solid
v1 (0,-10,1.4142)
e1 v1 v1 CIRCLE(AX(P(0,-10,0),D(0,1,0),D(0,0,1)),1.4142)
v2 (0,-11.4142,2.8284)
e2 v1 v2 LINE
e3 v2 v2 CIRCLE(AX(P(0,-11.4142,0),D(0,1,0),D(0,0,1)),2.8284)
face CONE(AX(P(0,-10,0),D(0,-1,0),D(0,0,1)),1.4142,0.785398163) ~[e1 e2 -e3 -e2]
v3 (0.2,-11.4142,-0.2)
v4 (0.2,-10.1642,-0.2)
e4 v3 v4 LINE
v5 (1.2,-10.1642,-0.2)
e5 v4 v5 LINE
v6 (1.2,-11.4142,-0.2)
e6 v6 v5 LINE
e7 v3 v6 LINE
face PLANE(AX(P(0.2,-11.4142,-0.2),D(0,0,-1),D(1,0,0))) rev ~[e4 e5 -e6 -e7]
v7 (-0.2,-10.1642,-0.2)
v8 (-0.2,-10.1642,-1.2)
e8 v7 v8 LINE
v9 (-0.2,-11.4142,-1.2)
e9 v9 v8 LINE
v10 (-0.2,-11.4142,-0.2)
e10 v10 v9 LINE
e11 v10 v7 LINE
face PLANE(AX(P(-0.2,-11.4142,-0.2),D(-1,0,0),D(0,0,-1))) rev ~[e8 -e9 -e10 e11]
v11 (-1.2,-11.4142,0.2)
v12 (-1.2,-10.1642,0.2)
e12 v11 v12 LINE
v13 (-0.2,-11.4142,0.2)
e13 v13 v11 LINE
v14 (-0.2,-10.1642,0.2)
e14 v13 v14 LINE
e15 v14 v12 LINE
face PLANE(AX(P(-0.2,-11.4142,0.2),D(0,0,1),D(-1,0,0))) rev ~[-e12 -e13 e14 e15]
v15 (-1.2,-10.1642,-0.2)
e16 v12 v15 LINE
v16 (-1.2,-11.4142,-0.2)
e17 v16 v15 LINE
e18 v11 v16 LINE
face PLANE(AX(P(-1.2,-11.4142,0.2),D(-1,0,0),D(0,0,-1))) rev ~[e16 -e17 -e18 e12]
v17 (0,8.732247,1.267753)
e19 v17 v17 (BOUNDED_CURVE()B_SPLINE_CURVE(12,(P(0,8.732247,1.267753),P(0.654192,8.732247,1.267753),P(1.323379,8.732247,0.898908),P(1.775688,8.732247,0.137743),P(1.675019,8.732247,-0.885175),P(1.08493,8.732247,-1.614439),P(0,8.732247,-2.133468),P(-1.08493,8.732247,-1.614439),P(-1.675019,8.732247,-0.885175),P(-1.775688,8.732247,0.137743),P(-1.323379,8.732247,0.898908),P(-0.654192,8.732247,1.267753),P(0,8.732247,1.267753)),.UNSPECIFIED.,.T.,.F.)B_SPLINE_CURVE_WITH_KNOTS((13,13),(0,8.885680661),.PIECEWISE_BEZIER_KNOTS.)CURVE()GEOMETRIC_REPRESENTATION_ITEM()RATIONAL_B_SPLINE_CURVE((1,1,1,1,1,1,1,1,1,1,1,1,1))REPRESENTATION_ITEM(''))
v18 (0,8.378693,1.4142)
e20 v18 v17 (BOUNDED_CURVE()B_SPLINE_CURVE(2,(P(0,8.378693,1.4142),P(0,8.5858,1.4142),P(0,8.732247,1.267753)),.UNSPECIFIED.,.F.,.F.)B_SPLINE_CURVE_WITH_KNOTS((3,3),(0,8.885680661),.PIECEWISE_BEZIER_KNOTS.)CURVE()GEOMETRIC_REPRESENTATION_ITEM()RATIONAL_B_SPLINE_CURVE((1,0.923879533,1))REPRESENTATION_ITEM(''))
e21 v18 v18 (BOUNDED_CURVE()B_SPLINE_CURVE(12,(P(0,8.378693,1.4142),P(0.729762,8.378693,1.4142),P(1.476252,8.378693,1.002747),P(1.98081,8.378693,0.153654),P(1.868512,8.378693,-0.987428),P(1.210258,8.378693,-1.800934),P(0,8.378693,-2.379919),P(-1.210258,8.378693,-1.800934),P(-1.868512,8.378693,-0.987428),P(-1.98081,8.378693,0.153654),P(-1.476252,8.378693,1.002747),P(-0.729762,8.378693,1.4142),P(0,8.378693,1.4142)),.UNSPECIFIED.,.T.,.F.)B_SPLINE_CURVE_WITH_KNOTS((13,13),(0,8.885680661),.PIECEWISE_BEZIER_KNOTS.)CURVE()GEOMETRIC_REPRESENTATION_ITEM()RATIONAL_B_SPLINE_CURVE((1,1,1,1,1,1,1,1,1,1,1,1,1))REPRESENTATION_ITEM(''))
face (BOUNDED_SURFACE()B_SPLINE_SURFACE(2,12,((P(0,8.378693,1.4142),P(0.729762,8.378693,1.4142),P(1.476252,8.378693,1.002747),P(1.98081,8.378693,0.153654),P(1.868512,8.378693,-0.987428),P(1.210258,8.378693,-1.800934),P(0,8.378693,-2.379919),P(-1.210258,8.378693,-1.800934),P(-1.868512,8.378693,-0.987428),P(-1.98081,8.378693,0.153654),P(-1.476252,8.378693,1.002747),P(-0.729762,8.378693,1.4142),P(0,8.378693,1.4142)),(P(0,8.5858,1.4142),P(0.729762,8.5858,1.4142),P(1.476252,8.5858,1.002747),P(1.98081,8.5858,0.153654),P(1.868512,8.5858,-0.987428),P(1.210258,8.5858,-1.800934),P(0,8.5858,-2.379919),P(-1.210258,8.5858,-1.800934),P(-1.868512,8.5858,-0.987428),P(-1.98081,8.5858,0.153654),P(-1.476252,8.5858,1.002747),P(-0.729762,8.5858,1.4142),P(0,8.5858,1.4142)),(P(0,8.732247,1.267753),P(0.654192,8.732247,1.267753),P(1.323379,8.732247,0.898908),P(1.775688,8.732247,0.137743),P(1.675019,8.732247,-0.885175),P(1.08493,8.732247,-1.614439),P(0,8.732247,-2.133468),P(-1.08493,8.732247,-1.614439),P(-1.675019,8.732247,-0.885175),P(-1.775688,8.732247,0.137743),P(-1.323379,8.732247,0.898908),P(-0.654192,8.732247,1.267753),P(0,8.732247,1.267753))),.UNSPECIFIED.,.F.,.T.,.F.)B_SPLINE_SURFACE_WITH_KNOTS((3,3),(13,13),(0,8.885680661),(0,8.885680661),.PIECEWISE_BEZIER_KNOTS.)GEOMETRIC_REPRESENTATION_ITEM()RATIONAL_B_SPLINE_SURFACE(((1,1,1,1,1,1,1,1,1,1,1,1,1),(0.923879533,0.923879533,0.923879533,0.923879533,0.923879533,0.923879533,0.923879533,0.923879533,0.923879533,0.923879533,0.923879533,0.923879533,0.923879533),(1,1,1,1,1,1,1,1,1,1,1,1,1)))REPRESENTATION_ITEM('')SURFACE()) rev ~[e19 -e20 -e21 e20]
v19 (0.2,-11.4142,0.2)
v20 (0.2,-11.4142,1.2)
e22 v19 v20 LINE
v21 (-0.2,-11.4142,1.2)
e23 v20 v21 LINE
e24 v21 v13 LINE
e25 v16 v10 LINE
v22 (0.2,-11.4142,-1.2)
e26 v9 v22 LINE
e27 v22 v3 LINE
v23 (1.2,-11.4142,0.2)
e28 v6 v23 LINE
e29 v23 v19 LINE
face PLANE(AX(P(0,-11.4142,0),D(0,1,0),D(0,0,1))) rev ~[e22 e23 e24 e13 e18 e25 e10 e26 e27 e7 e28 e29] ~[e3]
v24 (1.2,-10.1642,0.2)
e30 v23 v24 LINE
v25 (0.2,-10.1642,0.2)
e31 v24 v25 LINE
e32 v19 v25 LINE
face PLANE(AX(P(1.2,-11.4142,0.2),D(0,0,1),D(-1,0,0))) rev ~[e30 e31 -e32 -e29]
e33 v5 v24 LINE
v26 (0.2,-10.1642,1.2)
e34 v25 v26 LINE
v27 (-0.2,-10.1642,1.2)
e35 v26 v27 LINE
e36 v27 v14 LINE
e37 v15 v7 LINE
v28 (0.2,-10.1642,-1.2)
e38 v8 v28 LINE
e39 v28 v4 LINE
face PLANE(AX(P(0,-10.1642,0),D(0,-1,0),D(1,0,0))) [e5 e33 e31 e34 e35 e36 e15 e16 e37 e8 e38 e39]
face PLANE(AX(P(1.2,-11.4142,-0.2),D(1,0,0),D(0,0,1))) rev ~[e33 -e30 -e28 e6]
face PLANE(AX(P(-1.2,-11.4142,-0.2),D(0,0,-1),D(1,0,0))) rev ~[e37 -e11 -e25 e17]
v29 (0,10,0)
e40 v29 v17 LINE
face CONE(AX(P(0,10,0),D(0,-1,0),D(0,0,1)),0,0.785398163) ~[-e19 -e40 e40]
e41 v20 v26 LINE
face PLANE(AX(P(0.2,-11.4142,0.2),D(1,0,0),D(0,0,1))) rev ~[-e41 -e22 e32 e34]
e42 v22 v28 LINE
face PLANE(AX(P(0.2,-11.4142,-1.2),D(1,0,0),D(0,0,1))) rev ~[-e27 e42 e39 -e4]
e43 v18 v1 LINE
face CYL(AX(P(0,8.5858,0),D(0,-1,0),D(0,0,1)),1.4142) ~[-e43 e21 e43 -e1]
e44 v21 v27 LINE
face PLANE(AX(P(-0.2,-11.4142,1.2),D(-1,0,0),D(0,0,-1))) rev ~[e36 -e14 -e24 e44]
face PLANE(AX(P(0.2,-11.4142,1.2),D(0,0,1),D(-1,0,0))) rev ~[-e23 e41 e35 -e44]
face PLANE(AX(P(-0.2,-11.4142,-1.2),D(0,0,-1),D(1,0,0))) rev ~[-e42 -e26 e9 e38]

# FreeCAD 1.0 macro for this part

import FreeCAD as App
import Part
import Sketcher
Q = App.Units.Quantity


def edges_at(feature, points):
    """Names of the edges that pass closest to the given points."""
    edges = feature.Shape.Edges
    near = lambda p: min(range(len(edges)), key=lambda i: edges[i].distToShape(Part.Vertex(*p))[0])
    return sorted({f"Edge{near(p) + 1}" for p in points})

doc = App.newDocument("Part")
params = doc.addObject("Spreadsheet::Sheet", "Params")
for row, (alias, value) in enumerate([
    ("sketch1_length", "2 mm"),
    ("revolution_angle", "360 deg"),
    ("fillet_radius", "0.5 mm"),
    ("pocket1_length", "1.25 mm"),
], start=1):
    params.set(f"A{row}", alias)
    params.set(f"B{row}", "=" + value)
    params.setAlias(f"B{row}", alias)

body = doc.addObject("PartDesign::Body", "Body")

# Sketch on YZ plane
sketch1 = body.newObject("Sketcher::SketchObject", "Sketch")
sketch1.AttachmentSupport = (doc.getObject("YZ_Plane"), [""])
sketch1.MapMode = "FlatFace"
sketch1.addGeometry([
    Part.LineSegment(App.Vector(10, 0, 0), App.Vector(8.6, 1.4, 0)),  # 0
    Part.LineSegment(App.Vector(8.6, 1.4, 0), App.Vector(-10, 1.4, 0)),  # 1
    Part.LineSegment(App.Vector(-10, 1.4, 0), App.Vector(-11.4, 2.8, 0)),  # 2
    Part.LineSegment(App.Vector(-11.4, 2.8, 0), App.Vector(-11.4, 0, 0)),  # 3
    Part.LineSegment(App.Vector(-11.4, 0, 0), App.Vector(10, 0, 0)),  # 4
], False)
sketch1.addConstraint([
    Sketcher.Constraint("Coincident", 0, 2, 1, 1),
    Sketcher.Constraint("Coincident", 1, 2, 2, 1),
    Sketcher.Constraint("Coincident", 2, 2, 3, 1),
    Sketcher.Constraint("Coincident", 3, 2, 4, 1),
    Sketcher.Constraint("Coincident", 4, 2, 0, 1),
    Sketcher.Constraint("Horizontal", 1),
    Sketcher.Constraint("Vertical", 3),
    Sketcher.Constraint("Horizontal", 4),
    Sketcher.Constraint("PointOnObject", 3, 2, -1),
    Sketcher.Constraint("Parallel", 0, 2),
    Sketcher.Constraint("Equal", 0, 2),
    Sketcher.Constraint("Distance", 0, 2.0),
    Sketcher.Constraint("DistanceX", 1, 2, -1, 1, 10.0),
    Sketcher.Constraint("DistanceX", -1, 1, 4, 2, 10.0),
    Sketcher.Constraint("Angle", 0, Q("135 deg")),
])
sketch1.setExpression("Constraints[11]", "Params.sketch1_length")
revolution = body.newObject("PartDesign::Revolution", "Revolution")
revolution.Profile = sketch1
revolution.ReferenceAxis = (sketch1, ["H_Axis"])
revolution.setExpression("Angle", "Params.revolution_angle")
doc.recompute()

fillet = body.newObject("PartDesign::Fillet", "Fillet")
fillet.Base = (revolution, edges_at(revolution, [(0, 8.586, -1.414)]))
fillet.setExpression("Radius", "Params.fillet_radius")

# Sketch on XZ plane
sketch2 = body.newObject("Sketcher::SketchObject", "Sketch001")
sketch2.AttachmentSupport = (doc.getObject("XZ_Plane"), [""])
sketch2.MapMode = "FlatFace"
sketch2.AttachmentOffset = App.Placement(App.Vector(0, 0, 11.4142), App.Rotation())
sketch2.addGeometry([
    Part.LineSegment(App.Vector(0.2, 0.2, 0), App.Vector(0.2, 1.2, 0)),  # 0
    Part.LineSegment(App.Vector(0.2, 1.2, 0), App.Vector(-0.2, 1.2, 0)),  # 1
    Part.LineSegment(App.Vector(-0.2, 1.2, 0), App.Vector(-0.2, 0.2, 0)),  # 2
    Part.LineSegment(App.Vector(-0.2, 0.2, 0), App.Vector(-1.2, 0.2, 0)),  # 3
    Part.LineSegment(App.Vector(-1.2, 0.2, 0), App.Vector(-1.2, -0.2, 0)),  # 4
    Part.LineSegment(App.Vector(-1.2, -0.2, 0), App.Vector(-0.2, -0.2, 0)),  # 5
    Part.LineSegment(App.Vector(-0.2, -0.2, 0), App.Vector(-0.2, -1.2, 0)),  # 6
    Part.LineSegment(App.Vector(-0.2, -1.2, 0), App.Vector(0.2, -1.2, 0)),  # 7
    Part.LineSegment(App.Vector(0.2, -1.2, 0), App.Vector(0.2, -0.2, 0)),  # 8
    Part.LineSegment(App.Vector(0.2, -0.2, 0), App.Vector(1.2, -0.2, 0)),  # 9
    Part.LineSegment(App.Vector(1.2, -0.2, 0), App.Vector(1.2, 0.2, 0)),  # 10
    Part.LineSegment(App.Vector(1.2, 0.2, 0), App.Vector(0.2, 0.2, 0)),  # 11
], False)
sketch2.addConstraint([
    Sketcher.Constraint("Coincident", 0, 2, 1, 1),
    Sketcher.Constraint("Coincident", 1, 2, 2, 1),
    Sketcher.Constraint("Coincident", 2, 2, 3, 1),
    Sketcher.Constraint("Coincident", 3, 2, 4, 1),
    Sketcher.Constraint("Coincident", 4, 2, 5, 1),
    Sketcher.Constraint("Coincident", 5, 2, 6, 1),
    Sketcher.Constraint("Coincident", 6, 2, 7, 1),
    Sketcher.Constraint("Coincident", 7, 2, 8, 1),
    Sketcher.Constraint("Coincident", 8, 2, 9, 1),
    Sketcher.Constraint("Coincident", 9, 2, 10, 1),
    Sketcher.Constraint("Coincident", 10, 2, 11, 1),
    Sketcher.Constraint("Coincident", 11, 2, 0, 1),
    Sketcher.Constraint("Vertical", 0),
    Sketcher.Constraint("Horizontal", 1),
    Sketcher.Constraint("Vertical", 2),
    Sketcher.Constraint("Horizontal", 3),
    Sketcher.Constraint("Vertical", 4),
    Sketcher.Constraint("Horizontal", 5),
    Sketcher.Constraint("Vertical", 6),
    Sketcher.Constraint("Horizontal", 7),
    Sketcher.Constraint("Vertical", 8),
    Sketcher.Constraint("Horizontal", 9),
    Sketcher.Constraint("Vertical", 10),
    Sketcher.Constraint("Horizontal", 11),
    Sketcher.Constraint("Symmetric", 0, 2, 6, 2, -1, 1),
    Sketcher.Constraint("Symmetric", 2, 2, 8, 2, -1, 1),
    Sketcher.Constraint("Symmetric", 4, 2, 10, 2, -1, 1),
    Sketcher.Constraint("Symmetric", 5, 2, 8, 2, -2),
    Sketcher.Constraint("Equal", 11, 0),
    Sketcher.Constraint("Equal", 7, 4),
    Sketcher.Constraint("DistanceX", -1, 1, 0, 2, 0.2),
    Sketcher.Constraint("DistanceY", -1, 1, 0, 2, 1.2),
])
pocket1 = body.newObject("PartDesign::Pocket", "Pocket")
pocket1.Profile = sketch2
pocket1.setExpression("Length", "Params.pocket1_length")

doc.recompute()
